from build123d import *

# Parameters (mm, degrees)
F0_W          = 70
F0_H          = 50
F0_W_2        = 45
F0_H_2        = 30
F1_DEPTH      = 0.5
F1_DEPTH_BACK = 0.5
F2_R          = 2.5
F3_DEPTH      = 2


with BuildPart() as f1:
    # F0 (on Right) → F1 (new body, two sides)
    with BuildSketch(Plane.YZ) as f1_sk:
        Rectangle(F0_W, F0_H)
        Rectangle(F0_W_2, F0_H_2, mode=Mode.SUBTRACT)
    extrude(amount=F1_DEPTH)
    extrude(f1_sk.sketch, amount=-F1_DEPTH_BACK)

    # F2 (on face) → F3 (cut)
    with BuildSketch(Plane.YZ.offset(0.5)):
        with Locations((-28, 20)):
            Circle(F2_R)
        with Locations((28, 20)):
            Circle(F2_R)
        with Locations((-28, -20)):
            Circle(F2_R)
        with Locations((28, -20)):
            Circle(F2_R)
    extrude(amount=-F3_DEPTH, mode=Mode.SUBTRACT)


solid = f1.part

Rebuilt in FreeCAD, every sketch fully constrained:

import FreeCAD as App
import Part
import Sketcher
Q = App.Units.Quantity


def add_polygon(sketch, points):
    """Adds a closed chain of lines whose ends are joined by coincident constraints."""
    first, n = sketch.GeometryCount, len(points)
    for a, b in zip(points, points[1:] + points[:1]):
        sketch.addGeometry(Part.LineSegment(App.Vector(*a, 0), App.Vector(*b, 0)), False)
    for i in range(n):
        sketch.addConstraint(Sketcher.Constraint("Coincident", first + i, 2, first + (i + 1) % n, 1))

doc = App.newDocument("Part")
body = doc.addObject("PartDesign::Body", "Body")

# Sketch on YZ plane
sketch1 = body.newObject("Sketcher::SketchObject", "Sketch")
sketch1.AttachmentSupport = (doc.getObject("YZ_Plane"), [""])
sketch1.MapMode = "FlatFace"
add_polygon(sketch1, [(-35, 25), (-35, -25), (35, -25), (35, 25)])  # lines 0-3
add_polygon(sketch1, [(22, -15), (-22, -15), (-22, 15), (22, 15)])  # lines 4-7
sketch1.addConstraint(Sketcher.Constraint("Vertical", 0))
sketch1.addConstraint(Sketcher.Constraint("Horizontal", 1))
sketch1.addConstraint(Sketcher.Constraint("Vertical", 2))
sketch1.addConstraint(Sketcher.Constraint("Horizontal", 3))
sketch1.addConstraint(Sketcher.Constraint("Horizontal", 4))
sketch1.addConstraint(Sketcher.Constraint("Vertical", 5))
sketch1.addConstraint(Sketcher.Constraint("Horizontal", 6))
sketch1.addConstraint(Sketcher.Constraint("Vertical", 7))
sketch1.addConstraint(Sketcher.Constraint("Symmetric", 0, 2, 2, 2, -1, 1))
sketch1.addConstraint(Sketcher.Constraint("Symmetric", 4, 2, 6, 2, -1, 1))
sketch1.addConstraint(Sketcher.Constraint("DistanceX", 1, 1, 1, 2, Q("70 mm")))
sketch1.addConstraint(Sketcher.Constraint("DistanceX", 4, 2, 4, 1, Q("45 mm")))
sketch1.addConstraint(Sketcher.Constraint("DistanceY", 0, 2, 0, 1, Q("50 mm")))
sketch1.addConstraint(Sketcher.Constraint("DistanceY", 5, 1, 5, 2, Q("30 mm")))
pad1 = body.newObject("PartDesign::Pad", "Pad")
pad1.Profile = sketch1
pad1.Type = "TwoLengths"
pad1.Length = 0.5
pad1.Length2 = 0.5

# Sketch on YZ plane
sketch2 = body.newObject("Sketcher::SketchObject", "Sketch001")
sketch2.AttachmentSupport = (doc.getObject("YZ_Plane"), [""])
sketch2.MapMode = "FlatFace"
sketch2.AttachmentOffset = App.Placement(App.Vector(0, 0, 0.5), App.Rotation())
sketch2.addGeometry(Part.Circle(App.Vector(-28, 20, 0), App.Vector(0, 0, 1), 2.5), False)
sketch2.addGeometry(Part.Circle(App.Vector(28, 20, 0), App.Vector(0, 0, 1), 2.5), False)
sketch2.addGeometry(Part.Circle(App.Vector(-28, -20, 0), App.Vector(0, 0, 1), 2.5), False)
sketch2.addGeometry(Part.Circle(App.Vector(28, -20, 0), App.Vector(0, 0, 1), 2.5), False)
sketch2.addConstraint(Sketcher.Constraint("Equal", 0, 1))
sketch2.addConstraint(Sketcher.Constraint("Equal", 1, 2))
sketch2.addConstraint(Sketcher.Constraint("Equal", 2, 3))
sketch2.addConstraint(Sketcher.Constraint("Symmetric", 1, 3, 2, 3, -1, 1))
sketch2.addConstraint(Sketcher.Constraint("Symmetric", 0, 3, 3, 3, -1, 1))
sketch2.addConstraint(Sketcher.Constraint("Symmetric", 0, 3, 1, 3, -2))
sketch2.addConstraint(Sketcher.Constraint("Diameter", 0, Q("5 mm")))
sketch2.addConstraint(Sketcher.Constraint("DistanceX", 0, 3, -1, 1, Q("28 mm")))
sketch2.addConstraint(Sketcher.Constraint("DistanceY", -1, 1, 0, 3, Q("20 mm")))
pocket1 = body.newObject("PartDesign::Pocket", "Pocket")
pocket1.Profile = sketch2
pocket1.Length = 2

doc.recompute()
